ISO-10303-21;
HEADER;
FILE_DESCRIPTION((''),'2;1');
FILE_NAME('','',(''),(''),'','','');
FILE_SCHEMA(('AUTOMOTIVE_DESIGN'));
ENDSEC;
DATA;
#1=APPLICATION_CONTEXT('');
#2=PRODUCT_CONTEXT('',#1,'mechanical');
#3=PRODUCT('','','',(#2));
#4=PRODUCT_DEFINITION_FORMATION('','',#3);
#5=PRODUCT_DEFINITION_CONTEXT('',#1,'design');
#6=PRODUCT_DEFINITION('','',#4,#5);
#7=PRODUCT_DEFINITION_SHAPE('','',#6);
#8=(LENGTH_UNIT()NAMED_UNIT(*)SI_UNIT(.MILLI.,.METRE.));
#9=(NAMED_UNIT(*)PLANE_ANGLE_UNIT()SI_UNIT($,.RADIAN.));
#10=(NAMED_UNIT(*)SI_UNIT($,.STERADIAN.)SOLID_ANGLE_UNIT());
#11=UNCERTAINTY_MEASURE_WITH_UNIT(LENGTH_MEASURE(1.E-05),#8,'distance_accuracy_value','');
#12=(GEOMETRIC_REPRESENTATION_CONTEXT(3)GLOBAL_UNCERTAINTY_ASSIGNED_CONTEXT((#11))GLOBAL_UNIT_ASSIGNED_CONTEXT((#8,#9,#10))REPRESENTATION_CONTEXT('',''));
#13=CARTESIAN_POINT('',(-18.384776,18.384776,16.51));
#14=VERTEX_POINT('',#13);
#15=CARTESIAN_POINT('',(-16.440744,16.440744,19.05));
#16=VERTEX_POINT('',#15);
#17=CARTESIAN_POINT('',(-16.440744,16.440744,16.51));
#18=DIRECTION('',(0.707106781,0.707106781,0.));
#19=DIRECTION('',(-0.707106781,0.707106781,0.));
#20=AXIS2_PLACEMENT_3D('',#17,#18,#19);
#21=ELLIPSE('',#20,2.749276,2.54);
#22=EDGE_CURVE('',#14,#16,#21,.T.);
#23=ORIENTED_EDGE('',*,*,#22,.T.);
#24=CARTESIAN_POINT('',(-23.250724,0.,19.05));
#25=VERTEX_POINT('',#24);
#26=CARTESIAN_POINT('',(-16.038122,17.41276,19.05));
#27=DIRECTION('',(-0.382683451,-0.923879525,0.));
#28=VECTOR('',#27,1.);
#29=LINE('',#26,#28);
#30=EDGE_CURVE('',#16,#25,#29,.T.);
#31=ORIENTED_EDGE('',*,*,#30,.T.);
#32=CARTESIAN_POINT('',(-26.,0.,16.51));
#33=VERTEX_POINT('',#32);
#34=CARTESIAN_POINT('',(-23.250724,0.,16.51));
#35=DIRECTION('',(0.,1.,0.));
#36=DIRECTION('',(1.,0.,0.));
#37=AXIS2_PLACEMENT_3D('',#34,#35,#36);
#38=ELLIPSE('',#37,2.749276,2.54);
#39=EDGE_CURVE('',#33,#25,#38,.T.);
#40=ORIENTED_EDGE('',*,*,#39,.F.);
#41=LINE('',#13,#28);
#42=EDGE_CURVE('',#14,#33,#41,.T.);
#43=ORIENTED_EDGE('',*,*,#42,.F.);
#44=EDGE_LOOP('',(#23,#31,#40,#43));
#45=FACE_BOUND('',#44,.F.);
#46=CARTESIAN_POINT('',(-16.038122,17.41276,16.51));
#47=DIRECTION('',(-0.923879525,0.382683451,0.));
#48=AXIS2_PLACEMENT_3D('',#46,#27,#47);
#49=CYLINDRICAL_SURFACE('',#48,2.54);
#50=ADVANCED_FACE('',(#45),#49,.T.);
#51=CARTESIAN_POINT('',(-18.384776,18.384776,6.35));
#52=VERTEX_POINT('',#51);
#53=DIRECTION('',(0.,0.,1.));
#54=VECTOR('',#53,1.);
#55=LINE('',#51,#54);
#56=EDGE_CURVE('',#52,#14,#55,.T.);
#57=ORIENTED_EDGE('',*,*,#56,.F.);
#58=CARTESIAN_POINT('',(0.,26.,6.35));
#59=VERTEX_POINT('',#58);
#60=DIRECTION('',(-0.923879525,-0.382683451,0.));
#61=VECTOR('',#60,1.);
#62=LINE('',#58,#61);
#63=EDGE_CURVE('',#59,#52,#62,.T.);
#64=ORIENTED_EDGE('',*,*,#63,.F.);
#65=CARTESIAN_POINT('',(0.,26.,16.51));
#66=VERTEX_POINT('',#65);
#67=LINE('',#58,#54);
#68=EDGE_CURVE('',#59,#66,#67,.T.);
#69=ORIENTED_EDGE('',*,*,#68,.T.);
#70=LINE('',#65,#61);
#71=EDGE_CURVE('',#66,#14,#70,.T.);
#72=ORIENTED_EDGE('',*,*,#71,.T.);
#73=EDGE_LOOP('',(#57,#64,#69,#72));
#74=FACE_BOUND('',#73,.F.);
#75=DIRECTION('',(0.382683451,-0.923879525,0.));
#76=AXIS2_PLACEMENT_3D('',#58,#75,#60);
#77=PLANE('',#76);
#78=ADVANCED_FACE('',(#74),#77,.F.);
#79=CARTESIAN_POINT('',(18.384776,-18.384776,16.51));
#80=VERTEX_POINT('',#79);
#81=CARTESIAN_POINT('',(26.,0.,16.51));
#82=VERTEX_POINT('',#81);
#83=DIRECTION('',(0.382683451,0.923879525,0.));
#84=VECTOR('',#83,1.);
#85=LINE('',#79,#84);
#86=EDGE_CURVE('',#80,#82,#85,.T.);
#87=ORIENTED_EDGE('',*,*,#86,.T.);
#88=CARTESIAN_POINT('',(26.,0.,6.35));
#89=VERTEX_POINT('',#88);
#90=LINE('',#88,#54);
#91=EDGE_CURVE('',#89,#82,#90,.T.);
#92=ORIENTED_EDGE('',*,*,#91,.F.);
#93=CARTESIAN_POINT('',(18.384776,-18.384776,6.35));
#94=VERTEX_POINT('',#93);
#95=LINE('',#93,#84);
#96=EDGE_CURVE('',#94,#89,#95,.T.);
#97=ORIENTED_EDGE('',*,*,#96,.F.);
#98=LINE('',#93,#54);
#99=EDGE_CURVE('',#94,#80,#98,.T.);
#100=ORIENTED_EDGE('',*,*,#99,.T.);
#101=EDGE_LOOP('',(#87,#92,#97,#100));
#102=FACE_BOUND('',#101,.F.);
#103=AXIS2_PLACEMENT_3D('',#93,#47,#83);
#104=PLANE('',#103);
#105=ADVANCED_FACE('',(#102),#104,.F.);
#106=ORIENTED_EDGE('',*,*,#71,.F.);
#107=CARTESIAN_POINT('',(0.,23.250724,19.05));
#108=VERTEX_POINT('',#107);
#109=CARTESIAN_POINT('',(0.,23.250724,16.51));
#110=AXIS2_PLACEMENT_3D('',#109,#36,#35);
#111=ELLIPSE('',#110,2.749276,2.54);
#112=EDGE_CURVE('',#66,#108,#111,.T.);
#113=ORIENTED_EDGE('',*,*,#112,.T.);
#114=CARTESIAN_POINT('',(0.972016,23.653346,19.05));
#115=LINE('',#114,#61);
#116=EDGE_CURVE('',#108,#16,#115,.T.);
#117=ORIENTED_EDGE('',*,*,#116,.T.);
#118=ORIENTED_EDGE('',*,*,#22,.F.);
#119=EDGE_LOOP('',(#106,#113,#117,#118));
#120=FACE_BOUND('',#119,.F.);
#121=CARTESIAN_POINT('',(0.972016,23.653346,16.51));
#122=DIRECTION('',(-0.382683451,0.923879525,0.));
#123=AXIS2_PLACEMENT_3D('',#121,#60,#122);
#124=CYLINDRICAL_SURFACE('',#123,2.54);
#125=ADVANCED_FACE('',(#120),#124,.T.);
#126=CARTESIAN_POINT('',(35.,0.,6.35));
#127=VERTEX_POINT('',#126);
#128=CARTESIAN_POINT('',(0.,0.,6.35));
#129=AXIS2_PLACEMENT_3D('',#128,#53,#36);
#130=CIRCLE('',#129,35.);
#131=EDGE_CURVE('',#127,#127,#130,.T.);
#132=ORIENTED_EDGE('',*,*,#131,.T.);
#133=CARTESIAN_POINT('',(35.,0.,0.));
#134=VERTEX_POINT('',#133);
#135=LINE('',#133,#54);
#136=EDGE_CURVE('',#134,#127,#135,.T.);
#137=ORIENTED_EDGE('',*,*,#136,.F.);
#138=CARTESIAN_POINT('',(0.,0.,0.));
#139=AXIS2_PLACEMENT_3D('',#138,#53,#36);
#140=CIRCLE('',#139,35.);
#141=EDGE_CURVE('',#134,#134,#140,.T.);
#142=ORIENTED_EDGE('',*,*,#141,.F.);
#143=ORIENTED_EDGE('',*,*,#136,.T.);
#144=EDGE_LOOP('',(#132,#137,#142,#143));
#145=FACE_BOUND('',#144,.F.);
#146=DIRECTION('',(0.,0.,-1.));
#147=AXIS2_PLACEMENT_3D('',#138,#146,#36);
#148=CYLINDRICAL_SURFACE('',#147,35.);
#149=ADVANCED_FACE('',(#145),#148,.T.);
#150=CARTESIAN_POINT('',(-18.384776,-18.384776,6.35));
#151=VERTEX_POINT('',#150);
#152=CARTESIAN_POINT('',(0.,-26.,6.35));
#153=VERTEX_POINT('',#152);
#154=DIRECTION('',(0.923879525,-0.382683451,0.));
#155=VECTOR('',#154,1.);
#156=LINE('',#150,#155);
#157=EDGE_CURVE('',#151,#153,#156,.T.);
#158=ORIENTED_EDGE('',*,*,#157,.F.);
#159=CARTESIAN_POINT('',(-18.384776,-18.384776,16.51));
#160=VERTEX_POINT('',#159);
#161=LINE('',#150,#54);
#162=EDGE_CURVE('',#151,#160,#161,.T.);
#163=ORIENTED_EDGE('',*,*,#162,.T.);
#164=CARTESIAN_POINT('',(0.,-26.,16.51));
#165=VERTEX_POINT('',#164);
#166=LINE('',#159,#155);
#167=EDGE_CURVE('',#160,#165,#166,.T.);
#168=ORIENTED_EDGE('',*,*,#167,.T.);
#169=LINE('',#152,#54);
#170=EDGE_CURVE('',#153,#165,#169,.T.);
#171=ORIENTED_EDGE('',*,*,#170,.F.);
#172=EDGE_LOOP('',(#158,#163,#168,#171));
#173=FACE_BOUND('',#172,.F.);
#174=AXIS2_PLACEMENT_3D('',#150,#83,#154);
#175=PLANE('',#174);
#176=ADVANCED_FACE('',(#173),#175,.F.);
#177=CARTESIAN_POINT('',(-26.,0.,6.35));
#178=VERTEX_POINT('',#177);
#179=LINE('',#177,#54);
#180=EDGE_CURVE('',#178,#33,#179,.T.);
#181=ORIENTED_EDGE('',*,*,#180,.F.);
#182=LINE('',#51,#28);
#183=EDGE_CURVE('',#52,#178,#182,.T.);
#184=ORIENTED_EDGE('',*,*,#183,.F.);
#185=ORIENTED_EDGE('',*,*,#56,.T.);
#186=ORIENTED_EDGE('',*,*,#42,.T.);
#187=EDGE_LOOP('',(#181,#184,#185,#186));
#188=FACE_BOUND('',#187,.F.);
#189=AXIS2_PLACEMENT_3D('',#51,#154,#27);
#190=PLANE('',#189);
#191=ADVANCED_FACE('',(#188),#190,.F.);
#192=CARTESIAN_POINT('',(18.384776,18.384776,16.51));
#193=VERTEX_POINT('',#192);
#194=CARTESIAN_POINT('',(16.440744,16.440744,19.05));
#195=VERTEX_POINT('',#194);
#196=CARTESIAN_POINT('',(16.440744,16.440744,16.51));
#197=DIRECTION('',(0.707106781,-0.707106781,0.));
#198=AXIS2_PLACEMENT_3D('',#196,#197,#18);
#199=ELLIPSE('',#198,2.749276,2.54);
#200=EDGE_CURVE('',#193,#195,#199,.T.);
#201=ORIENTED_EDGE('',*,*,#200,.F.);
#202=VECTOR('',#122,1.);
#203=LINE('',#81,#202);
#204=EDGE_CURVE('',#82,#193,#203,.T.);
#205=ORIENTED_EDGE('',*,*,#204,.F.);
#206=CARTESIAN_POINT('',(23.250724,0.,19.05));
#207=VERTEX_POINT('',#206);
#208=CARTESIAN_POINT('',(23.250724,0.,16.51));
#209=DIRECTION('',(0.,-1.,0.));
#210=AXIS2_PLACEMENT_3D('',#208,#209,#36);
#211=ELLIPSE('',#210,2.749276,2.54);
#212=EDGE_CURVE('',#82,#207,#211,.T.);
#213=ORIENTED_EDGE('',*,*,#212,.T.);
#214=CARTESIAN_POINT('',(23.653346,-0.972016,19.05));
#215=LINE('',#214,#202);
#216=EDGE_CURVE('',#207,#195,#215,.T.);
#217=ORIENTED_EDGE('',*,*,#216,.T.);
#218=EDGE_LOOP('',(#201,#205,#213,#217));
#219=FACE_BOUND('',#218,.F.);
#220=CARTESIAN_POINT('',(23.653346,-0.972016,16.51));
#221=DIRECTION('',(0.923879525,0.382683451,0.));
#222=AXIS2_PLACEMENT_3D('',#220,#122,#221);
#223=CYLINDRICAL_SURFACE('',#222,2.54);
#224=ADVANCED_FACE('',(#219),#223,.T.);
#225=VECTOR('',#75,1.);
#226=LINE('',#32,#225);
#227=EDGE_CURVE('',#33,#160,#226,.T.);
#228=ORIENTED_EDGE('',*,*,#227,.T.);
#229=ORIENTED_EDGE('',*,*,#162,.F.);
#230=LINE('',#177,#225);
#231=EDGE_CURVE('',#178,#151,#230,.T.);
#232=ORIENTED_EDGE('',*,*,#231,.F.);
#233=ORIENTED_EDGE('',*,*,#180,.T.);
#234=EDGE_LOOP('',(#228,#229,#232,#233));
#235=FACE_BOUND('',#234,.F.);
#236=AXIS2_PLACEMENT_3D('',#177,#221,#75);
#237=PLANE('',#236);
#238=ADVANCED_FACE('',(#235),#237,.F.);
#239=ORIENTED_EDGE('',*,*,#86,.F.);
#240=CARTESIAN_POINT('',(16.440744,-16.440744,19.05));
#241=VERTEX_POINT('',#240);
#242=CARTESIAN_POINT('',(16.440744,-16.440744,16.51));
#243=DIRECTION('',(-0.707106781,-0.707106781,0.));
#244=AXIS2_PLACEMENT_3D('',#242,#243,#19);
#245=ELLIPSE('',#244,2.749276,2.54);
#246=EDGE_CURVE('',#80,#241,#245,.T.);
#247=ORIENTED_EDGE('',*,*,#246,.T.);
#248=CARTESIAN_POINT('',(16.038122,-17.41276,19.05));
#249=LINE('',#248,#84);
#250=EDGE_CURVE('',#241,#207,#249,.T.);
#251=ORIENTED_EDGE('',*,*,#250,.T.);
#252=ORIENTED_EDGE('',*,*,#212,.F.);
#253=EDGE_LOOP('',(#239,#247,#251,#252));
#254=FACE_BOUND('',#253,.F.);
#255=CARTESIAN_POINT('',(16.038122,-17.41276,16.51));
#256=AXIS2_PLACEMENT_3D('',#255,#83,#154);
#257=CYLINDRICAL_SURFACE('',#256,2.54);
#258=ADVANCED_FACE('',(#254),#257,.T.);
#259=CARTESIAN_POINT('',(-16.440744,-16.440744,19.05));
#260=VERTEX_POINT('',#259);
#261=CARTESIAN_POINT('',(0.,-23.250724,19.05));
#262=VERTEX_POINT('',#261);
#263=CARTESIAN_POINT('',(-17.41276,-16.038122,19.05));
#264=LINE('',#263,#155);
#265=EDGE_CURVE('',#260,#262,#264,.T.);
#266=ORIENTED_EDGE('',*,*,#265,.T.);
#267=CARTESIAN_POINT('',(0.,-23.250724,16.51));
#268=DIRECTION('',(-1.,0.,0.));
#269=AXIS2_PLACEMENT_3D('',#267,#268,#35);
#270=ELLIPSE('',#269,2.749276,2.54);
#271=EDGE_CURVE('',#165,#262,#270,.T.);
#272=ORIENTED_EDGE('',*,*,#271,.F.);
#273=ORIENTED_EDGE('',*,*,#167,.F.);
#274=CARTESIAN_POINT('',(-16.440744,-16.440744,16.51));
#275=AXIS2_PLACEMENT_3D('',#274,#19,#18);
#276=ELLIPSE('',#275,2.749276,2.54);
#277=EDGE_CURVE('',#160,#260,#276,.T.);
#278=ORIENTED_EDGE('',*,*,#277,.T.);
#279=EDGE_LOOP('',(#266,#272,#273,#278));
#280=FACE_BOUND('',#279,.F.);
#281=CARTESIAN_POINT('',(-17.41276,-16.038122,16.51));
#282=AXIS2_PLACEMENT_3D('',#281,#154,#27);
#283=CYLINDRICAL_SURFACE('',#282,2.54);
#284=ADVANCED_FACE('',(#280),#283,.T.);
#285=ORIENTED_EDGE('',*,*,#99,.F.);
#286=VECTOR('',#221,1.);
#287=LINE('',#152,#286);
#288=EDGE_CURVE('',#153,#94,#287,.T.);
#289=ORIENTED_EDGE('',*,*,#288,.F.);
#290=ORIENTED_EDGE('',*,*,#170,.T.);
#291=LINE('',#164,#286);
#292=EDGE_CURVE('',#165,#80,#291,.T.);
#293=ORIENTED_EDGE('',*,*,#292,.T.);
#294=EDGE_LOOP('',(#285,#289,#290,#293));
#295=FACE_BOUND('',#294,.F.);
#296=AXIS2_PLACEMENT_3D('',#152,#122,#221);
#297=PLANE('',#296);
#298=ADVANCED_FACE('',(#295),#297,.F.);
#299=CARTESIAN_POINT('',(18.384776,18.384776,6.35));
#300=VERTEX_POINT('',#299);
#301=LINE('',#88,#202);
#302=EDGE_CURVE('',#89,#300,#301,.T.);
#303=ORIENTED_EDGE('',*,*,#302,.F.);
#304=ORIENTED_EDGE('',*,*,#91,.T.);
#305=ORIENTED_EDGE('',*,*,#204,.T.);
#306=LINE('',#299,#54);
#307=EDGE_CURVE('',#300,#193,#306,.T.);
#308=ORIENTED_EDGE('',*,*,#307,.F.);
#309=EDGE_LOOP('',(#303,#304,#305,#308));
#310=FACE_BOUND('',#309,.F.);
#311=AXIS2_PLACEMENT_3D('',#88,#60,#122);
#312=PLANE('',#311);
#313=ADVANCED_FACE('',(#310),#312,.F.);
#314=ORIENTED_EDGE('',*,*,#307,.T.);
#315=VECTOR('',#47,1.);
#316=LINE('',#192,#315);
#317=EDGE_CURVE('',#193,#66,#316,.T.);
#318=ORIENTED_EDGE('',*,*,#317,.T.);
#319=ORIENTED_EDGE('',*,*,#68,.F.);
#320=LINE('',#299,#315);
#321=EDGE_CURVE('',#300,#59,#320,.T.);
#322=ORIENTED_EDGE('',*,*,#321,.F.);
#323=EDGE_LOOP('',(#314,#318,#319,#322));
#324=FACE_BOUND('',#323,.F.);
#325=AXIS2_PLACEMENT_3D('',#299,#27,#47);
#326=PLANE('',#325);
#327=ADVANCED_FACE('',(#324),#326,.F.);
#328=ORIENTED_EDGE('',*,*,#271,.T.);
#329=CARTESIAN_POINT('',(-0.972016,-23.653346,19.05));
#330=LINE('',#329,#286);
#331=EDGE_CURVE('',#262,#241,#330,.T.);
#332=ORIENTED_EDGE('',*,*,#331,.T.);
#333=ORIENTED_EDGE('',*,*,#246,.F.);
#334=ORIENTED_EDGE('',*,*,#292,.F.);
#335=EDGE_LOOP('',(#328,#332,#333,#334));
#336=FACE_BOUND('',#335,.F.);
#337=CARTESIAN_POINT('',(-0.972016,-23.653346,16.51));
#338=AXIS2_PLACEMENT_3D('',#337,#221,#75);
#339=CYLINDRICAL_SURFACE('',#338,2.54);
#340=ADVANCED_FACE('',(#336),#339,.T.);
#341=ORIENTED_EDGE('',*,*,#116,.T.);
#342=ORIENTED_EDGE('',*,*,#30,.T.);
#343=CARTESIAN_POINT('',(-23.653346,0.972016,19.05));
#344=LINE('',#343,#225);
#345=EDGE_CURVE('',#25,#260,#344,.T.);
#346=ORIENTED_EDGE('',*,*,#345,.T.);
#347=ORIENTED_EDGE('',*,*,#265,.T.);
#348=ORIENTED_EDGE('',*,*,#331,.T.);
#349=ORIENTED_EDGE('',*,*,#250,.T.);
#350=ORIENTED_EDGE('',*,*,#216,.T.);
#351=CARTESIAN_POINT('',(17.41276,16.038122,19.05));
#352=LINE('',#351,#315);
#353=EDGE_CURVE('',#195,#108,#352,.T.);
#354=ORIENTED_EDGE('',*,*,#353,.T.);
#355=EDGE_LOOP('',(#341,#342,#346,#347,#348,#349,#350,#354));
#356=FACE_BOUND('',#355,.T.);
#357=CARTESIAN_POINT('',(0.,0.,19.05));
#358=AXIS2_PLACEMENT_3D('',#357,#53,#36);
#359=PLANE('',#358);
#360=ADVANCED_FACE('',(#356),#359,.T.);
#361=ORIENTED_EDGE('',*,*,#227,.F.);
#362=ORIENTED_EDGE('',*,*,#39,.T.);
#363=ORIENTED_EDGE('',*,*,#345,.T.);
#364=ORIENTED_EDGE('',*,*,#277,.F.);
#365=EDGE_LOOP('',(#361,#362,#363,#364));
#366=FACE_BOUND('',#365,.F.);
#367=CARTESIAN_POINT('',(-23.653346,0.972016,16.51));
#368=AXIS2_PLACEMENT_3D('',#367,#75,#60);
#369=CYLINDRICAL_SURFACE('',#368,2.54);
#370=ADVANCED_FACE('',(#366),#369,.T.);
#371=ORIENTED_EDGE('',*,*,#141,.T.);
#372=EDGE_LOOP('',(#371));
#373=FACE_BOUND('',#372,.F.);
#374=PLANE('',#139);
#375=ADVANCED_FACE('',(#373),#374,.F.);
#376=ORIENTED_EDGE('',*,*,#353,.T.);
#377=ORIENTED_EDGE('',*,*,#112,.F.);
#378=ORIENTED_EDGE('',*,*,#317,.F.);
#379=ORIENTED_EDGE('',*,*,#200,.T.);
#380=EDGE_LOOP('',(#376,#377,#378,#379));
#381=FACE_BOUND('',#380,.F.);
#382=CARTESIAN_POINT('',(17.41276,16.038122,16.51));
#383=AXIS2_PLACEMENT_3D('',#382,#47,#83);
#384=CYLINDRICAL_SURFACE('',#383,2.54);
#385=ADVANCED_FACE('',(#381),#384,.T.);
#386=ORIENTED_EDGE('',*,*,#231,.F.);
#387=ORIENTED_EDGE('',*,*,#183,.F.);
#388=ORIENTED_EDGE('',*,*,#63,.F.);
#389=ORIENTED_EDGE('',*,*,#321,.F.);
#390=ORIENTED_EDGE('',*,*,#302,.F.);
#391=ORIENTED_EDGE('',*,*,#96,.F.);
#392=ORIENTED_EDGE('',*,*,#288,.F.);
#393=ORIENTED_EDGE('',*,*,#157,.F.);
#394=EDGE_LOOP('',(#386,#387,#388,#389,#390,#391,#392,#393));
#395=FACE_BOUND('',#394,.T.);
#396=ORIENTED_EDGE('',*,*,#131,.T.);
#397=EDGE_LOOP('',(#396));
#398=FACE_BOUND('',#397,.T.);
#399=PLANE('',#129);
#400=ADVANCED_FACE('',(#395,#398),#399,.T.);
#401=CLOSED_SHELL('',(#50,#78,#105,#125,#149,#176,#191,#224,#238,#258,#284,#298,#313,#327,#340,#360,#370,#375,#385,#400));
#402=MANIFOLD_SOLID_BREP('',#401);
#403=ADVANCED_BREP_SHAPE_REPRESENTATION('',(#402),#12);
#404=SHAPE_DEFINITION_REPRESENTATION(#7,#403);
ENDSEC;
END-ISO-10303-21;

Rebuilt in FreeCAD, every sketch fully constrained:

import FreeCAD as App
import Part
import Sketcher

V = App.Vector
Q = App.Units.Quantity


def edges_at(feature, points):
    """Names of the edges that pass closest to the given points."""
    edges = feature.Shape.Edges
    near = lambda p: min(range(len(edges)), key=lambda i: edges[i].distToShape(Part.Vertex(*p))[0])
    return sorted({f"Edge{near(p) + 1}" for p in points})

doc = App.newDocument("Part")
params = doc.addObject("Spreadsheet::Sheet", "Params")
for row, (alias, value) in enumerate([
    ("pad1_length", "0.25 in"),
    ("pad2_length", "0.5 in"),
    ("fillet_radius", "0.1 in"),
], start=1):
    params.set(f"A{row}", alias)
    params.set(f"B{row}", "=" + value)
    params.setAlias(f"B{row}", alias)

body = doc.addObject("PartDesign::Body", "Body")

# Sketch on XY plane
sketch1 = body.newObject("Sketcher::SketchObject", "Sketch")
sketch1.AttachmentSupport = (doc.getObject("XY_Plane"), [""])
sketch1.MapMode = "FlatFace"
sketch1.addGeometry(Part.Circle(V(0, 0, 0), V(0, 0, 1), 35), False)
sketch1.addConstraint([
    Sketcher.Constraint("Coincident", 0, 3, -1, 1),
    Sketcher.Constraint("Diameter", 0, Q("70 mm")),
])
pad1 = body.newObject("PartDesign::Pad", "Pad")
pad1.Profile = sketch1
pad1.setExpression("Length", "Params.pad1_length")

# Sketch on XY plane
sketch2 = body.newObject("Sketcher::SketchObject", "Sketch001")
sketch2.AttachmentSupport = (doc.getObject("XY_Plane"), [""])
sketch2.MapMode = "FlatFace"
sketch2.AttachmentOffset = App.Placement(V(0, 0, 0.25 * 25.4), App.Rotation())
sketch2.addGeometry([
    Part.LineSegment(V(18, -18, 0), V(26, 0, 0)),  # 0
    Part.LineSegment(V(26, 0, 0), V(18, 18, 0)),  # 1
    Part.LineSegment(V(18, 18, 0), V(0, 26, 0)),  # 2
    Part.LineSegment(V(0, 26, 0), V(-18, 18, 0)),  # 3
    Part.LineSegment(V(-18, 18, 0), V(-26, 0, 0)),  # 4
    Part.LineSegment(V(-26, 0, 0), V(-18, -18, 0)),  # 5
    Part.LineSegment(V(-18, -18, 0), V(0, -26, 0)),  # 6
    Part.LineSegment(V(0, -26, 0), V(18, -18, 0)),  # 7
], False)
sketch2.addConstraint([
    Sketcher.Constraint("Coincident", 0, 2, 1, 1),
    Sketcher.Constraint("Coincident", 1, 2, 2, 1),
    Sketcher.Constraint("Coincident", 2, 2, 3, 1),
    Sketcher.Constraint("Coincident", 3, 2, 4, 1),
    Sketcher.Constraint("Coincident", 4, 2, 5, 1),
    Sketcher.Constraint("Coincident", 5, 2, 6, 1),
    Sketcher.Constraint("Coincident", 6, 2, 7, 1),
    Sketcher.Constraint("Coincident", 7, 2, 0, 1),
    Sketcher.Constraint("Symmetric", 0, 2, 4, 2, -1, 1),
    Sketcher.Constraint("Symmetric", 1, 2, 5, 2, -1, 1),
    Sketcher.Constraint("Symmetric", 2, 2, 6, 2, -1, 1),
    Sketcher.Constraint("Symmetric", 3, 2, 7, 2, -1, 1),
    Sketcher.Constraint("Symmetric", 1, 2, 3, 2, -2),
    Sketcher.Constraint("PointOnObject", 0, 2, -1),
    Sketcher.Constraint("PointOnObject", 2, 2, -2),
    Sketcher.Constraint("Perpendicular", 0, 2),
    Sketcher.Constraint("Equal", 1, 2),
    Sketcher.Constraint("Angle", 0, Q("67.499999 deg")),
    Sketcher.Constraint("DistanceX", -1, 1, 0, 2, Q("26 mm")),
])
pad2 = body.newObject("PartDesign::Pad", "Pad001")
pad2.Profile = sketch2
pad2.setExpression("Length", "Params.pad2_length")
doc.recompute()

fillet = body.newObject("PartDesign::Fillet", "Fillet")
fillet.Base = (pad2, edges_at(pad2, [
    (22.192, -9.192, 19.05),
    (22.192, 9.192, 19.05),
    (9.192, 22.192, 19.05),
    (-9.192, 22.192, 19.05),
    (9.192, -22.192, 19.05),
    (-9.192, -22.192, 19.05),
    (-22.192, -9.192, 19.05),
    (-22.192, 9.192, 19.05),
]))
fillet.setExpression("Radius", "Params.fillet_radius")

doc.recompute()
